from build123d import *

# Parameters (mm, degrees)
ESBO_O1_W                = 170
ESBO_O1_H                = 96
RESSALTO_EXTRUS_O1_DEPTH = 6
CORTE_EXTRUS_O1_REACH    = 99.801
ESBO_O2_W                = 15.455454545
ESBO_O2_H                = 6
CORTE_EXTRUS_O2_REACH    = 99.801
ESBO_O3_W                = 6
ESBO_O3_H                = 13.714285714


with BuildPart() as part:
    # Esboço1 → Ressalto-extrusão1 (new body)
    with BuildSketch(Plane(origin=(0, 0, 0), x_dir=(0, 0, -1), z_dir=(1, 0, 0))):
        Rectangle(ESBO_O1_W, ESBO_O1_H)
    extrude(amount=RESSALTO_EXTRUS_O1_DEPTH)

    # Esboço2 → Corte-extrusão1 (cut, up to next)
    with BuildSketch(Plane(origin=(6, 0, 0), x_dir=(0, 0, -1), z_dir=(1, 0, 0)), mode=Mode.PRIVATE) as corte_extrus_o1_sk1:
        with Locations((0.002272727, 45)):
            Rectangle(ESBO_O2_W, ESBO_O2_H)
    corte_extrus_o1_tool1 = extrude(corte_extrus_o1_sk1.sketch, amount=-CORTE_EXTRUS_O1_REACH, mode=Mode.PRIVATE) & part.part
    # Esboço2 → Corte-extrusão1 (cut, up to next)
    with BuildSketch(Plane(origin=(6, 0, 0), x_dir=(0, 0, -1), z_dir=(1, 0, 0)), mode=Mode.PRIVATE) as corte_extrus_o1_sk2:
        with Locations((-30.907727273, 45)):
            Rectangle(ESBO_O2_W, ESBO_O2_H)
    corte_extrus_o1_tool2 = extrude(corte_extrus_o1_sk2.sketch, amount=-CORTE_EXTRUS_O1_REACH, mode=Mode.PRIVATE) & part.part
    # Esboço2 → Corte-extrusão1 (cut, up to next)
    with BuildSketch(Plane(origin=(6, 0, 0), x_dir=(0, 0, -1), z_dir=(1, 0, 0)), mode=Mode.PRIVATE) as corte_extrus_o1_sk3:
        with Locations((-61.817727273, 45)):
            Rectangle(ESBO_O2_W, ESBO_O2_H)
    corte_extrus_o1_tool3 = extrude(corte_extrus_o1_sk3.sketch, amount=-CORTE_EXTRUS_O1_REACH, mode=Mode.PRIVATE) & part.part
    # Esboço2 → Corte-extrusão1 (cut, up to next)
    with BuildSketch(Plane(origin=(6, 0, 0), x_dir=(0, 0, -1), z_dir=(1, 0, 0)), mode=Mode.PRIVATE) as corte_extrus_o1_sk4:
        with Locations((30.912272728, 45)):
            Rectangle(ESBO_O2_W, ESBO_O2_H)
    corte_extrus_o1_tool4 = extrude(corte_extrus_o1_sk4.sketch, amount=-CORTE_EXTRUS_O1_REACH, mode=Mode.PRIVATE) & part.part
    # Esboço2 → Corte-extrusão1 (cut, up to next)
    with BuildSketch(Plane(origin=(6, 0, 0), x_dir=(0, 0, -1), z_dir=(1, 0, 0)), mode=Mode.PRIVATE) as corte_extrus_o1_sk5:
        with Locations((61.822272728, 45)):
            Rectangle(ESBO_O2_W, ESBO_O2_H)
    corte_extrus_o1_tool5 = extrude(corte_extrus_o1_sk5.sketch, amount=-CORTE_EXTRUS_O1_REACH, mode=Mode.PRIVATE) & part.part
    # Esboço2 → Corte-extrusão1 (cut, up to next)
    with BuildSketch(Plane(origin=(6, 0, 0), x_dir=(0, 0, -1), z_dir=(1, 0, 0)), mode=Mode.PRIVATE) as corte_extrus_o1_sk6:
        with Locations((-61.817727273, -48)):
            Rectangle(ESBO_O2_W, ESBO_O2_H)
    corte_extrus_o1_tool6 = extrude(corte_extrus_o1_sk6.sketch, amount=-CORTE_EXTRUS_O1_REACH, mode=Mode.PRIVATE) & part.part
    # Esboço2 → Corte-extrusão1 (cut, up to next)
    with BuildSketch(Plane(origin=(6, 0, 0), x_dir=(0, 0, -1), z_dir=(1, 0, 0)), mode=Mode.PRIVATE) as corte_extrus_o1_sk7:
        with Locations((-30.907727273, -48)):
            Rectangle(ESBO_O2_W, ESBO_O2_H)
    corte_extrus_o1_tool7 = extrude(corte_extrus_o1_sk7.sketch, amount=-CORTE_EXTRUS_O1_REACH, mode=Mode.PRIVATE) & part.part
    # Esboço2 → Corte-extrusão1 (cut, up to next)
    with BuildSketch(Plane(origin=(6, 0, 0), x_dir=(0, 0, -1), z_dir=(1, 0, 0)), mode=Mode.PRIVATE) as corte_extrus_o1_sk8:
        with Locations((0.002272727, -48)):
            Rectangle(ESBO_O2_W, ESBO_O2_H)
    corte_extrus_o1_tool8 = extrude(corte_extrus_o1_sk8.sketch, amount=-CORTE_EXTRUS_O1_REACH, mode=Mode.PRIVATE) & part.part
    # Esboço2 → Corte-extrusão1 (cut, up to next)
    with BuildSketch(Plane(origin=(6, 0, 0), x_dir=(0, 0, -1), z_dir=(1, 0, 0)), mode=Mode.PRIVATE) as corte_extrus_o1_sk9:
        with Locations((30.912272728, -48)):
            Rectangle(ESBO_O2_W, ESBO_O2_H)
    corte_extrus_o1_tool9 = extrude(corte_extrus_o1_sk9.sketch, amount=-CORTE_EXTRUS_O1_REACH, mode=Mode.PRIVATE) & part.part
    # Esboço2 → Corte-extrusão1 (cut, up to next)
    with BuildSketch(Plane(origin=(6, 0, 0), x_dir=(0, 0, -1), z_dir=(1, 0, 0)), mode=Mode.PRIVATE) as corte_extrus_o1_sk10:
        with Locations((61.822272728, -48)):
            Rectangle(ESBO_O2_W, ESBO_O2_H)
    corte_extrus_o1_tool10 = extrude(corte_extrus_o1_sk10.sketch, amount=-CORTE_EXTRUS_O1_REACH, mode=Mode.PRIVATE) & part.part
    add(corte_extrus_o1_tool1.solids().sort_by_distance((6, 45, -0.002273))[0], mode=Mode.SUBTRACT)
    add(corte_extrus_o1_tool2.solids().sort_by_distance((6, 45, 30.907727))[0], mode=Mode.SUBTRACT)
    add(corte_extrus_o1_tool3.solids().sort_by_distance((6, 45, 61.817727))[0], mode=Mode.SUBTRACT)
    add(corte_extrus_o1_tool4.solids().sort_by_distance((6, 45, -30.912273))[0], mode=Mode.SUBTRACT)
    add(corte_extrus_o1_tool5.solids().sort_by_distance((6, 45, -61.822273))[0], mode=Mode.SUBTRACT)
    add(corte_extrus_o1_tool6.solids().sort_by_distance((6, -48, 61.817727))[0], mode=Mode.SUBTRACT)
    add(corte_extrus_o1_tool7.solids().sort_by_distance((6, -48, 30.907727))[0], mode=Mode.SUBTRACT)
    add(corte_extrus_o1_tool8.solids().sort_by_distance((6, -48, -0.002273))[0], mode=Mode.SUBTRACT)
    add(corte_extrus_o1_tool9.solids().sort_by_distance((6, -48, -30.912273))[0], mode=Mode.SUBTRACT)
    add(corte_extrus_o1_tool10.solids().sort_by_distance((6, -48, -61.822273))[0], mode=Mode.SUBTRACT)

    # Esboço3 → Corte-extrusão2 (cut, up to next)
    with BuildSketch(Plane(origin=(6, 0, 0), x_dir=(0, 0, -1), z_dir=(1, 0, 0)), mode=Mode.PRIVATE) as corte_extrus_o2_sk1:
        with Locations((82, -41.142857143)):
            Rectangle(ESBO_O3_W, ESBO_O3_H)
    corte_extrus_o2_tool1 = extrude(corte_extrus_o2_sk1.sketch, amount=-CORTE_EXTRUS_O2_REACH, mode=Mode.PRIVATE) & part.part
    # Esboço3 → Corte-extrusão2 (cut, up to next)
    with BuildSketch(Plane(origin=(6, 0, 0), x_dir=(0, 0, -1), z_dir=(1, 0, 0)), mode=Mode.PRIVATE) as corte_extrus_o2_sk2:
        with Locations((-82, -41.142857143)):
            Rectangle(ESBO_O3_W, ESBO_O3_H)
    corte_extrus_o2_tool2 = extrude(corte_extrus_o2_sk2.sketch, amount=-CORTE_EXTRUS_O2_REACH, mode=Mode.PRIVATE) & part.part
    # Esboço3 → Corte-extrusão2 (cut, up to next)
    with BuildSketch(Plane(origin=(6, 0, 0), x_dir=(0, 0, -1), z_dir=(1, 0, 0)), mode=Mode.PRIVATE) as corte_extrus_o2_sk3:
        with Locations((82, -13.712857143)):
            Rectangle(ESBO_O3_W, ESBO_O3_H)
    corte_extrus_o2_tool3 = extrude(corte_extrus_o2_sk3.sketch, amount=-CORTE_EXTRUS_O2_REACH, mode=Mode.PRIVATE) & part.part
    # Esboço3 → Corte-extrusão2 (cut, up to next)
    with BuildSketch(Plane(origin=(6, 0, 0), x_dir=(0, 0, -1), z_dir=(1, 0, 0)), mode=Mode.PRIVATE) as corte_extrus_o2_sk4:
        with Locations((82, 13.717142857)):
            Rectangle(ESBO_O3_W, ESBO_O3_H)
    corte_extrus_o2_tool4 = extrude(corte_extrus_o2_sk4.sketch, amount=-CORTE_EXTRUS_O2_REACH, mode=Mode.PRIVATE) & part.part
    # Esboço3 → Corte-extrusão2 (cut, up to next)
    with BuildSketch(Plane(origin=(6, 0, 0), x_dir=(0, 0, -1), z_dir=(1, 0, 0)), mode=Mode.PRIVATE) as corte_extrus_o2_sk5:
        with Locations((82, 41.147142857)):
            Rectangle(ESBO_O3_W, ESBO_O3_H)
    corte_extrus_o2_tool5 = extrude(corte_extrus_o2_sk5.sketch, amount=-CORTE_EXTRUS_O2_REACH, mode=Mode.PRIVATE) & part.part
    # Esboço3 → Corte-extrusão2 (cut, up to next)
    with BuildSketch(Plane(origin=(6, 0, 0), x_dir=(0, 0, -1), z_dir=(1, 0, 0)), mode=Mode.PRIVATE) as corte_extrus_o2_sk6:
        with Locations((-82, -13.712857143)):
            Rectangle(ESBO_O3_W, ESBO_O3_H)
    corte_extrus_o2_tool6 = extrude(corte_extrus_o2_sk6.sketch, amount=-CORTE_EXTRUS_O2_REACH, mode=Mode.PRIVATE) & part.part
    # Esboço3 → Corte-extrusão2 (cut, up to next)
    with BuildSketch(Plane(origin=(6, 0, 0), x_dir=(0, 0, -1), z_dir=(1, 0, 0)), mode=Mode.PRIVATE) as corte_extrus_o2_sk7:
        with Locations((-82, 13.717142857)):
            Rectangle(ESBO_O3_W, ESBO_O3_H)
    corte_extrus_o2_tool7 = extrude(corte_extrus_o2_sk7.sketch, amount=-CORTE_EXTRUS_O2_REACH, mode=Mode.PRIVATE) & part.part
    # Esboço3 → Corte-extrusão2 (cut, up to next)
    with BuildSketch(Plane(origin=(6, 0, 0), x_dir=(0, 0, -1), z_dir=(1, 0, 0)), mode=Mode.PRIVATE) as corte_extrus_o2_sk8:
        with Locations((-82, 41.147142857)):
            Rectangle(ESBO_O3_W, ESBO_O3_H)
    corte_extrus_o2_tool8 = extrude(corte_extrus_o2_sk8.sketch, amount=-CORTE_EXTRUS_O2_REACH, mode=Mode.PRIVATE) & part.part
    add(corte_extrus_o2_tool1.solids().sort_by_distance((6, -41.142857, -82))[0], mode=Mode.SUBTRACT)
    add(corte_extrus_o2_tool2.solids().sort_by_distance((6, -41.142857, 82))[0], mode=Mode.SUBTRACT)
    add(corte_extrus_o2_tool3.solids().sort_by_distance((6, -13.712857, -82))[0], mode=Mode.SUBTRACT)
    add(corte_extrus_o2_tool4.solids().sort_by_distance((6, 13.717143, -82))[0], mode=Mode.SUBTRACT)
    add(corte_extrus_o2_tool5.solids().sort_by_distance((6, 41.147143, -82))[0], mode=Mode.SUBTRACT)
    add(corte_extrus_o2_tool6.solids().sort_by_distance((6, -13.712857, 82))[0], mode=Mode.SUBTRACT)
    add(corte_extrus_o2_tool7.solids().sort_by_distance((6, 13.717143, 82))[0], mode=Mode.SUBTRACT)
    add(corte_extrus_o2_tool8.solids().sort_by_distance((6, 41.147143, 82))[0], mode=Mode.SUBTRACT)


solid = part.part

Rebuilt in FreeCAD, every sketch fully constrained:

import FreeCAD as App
import Part
import Sketcher


def add_polygon(sketch, points):
    """Adds a closed chain of lines whose ends are joined by coincident constraints."""
    first, n = sketch.GeometryCount, len(points)
    for a, b in zip(points, points[1:] + points[:1]):
        sketch.addGeometry(Part.LineSegment(App.Vector(*a, 0), App.Vector(*b, 0)), False)
    for i in range(n):
        sketch.addConstraint(Sketcher.Constraint("Coincident", first + i, 2, first + (i + 1) % n, 1))

doc = App.newDocument("Part")
body = doc.addObject("PartDesign::Body", "Body")

sketch1 = body.newObject("Sketcher::SketchObject", "Sketch")
sketch1.AttachmentSupport = (doc.getObject("YZ_Plane"), [""])
sketch1.MapMode = "FlatFace"
add_polygon(sketch1, [(48, 85), (-48, 85), (-48, -85), (48, -85)])
sketch1.addConstraint([
    Sketcher.Constraint("Horizontal", 0),
    Sketcher.Constraint("Vertical", 1),
    Sketcher.Constraint("Horizontal", 2),
    Sketcher.Constraint("Vertical", 3),
    Sketcher.Constraint("Symmetric", 0, 2, 2, 2, -1, 1),
    Sketcher.Constraint("DistanceX", 0, 2, 0, 1, 96.0),
    Sketcher.Constraint("DistanceY", 1, 2, 1, 1, 170.0),
])
pad1 = body.newObject("PartDesign::Pad", "Pad")
pad1.Profile = sketch1
pad1.Length = 6

sketch2 = body.newObject("Sketcher::SketchObject", "Sketch001")
sketch2.AttachmentSupport = (doc.getObject("YZ_Plane"), [""])
sketch2.MapMode = "FlatFace"
sketch2.AttachmentOffset = App.Placement(App.Vector(0, 0, 6), App.Rotation())
add_polygon(sketch2, [(48, 8), (42, 8), (42, -8), (48, -8)])
sketch2.addConstraint([
    Sketcher.Constraint("Horizontal", 0),
    Sketcher.Constraint("Vertical", 1),
    Sketcher.Constraint("Horizontal", 2),
    Sketcher.Constraint("Vertical", 3),
    Sketcher.Constraint("DistanceX", 0, 2, 0, 1, 6.0),
    Sketcher.Constraint("DistanceX", -1, 1, 0, 2, 42.0),
    Sketcher.Constraint("DistanceY", 1, 2, -1, 1, 7.73),
    Sketcher.Constraint("DistanceY", 1, 2, 1, 1, 15.455455),
])
pocket1 = body.newObject("PartDesign::Pocket", "Pocket")
pocket1.Profile = sketch2
pocket1.Type = "UpToFirst"

sketch3 = body.newObject("Sketcher::SketchObject", "Sketch002")
sketch3.AttachmentSupport = (doc.getObject("YZ_Plane"), [""])
sketch3.MapMode = "FlatFace"
sketch3.AttachmentOffset = App.Placement(App.Vector(0, 0, 6), App.Rotation())
add_polygon(sketch3, [(48, 39), (42, 39), (42, 23), (48, 23)])
sketch3.addConstraint([
    Sketcher.Constraint("Horizontal", 0),
    Sketcher.Constraint("Vertical", 1),
    Sketcher.Constraint("Horizontal", 2),
    Sketcher.Constraint("Vertical", 3),
    Sketcher.Constraint("DistanceX", 0, 2, 0, 1, 6.0),
    Sketcher.Constraint("DistanceX", -1, 1, 0, 2, 42.0),
    Sketcher.Constraint("DistanceY", -1, 1, 1, 2, 23.18),
    Sketcher.Constraint("DistanceY", 1, 2, 1, 1, 15.455455),
])
pocket2 = body.newObject("PartDesign::Pocket", "Pocket001")
pocket2.Profile = sketch3
pocket2.Type = "UpToFirst"

sketch4 = body.newObject("Sketcher::SketchObject", "Sketch003")
sketch4.AttachmentSupport = (doc.getObject("YZ_Plane"), [""])
sketch4.MapMode = "FlatFace"
sketch4.AttachmentOffset = App.Placement(App.Vector(0, 0, 6), App.Rotation())
add_polygon(sketch4, [(48, 70), (42, 70), (42, 54), (48, 54)])
sketch4.addConstraint([
    Sketcher.Constraint("Horizontal", 0),
    Sketcher.Constraint("Vertical", 1),
    Sketcher.Constraint("Horizontal", 2),
    Sketcher.Constraint("Vertical", 3),
    Sketcher.Constraint("DistanceX", 0, 2, 0, 1, 6.0),
    Sketcher.Constraint("DistanceX", -1, 1, 0, 2, 42.0),
    Sketcher.Constraint("DistanceY", -1, 1, 1, 2, 54.09),
    Sketcher.Constraint("DistanceY", 1, 2, 1, 1, 15.455455),
])
pocket3 = body.newObject("PartDesign::Pocket", "Pocket002")
pocket3.Profile = sketch4
pocket3.Type = "UpToFirst"

sketch5 = body.newObject("Sketcher::SketchObject", "Sketch004")
sketch5.AttachmentSupport = (doc.getObject("YZ_Plane"), [""])
sketch5.MapMode = "FlatFace"
sketch5.AttachmentOffset = App.Placement(App.Vector(0, 0, 6), App.Rotation())
add_polygon(sketch5, [(48, -23), (42, -23), (42, -39), (48, -39)])
sketch5.addConstraint([
    Sketcher.Constraint("Horizontal", 0),
    Sketcher.Constraint("Vertical", 1),
    Sketcher.Constraint("Horizontal", 2),
    Sketcher.Constraint("Vertical", 3),
    Sketcher.Constraint("DistanceX", 0, 2, 0, 1, 6.0),
    Sketcher.Constraint("DistanceX", -1, 1, 0, 2, 42.0),
    Sketcher.Constraint("DistanceY", 1, 2, -1, 1, 38.64),
    Sketcher.Constraint("DistanceY", 1, 2, 1, 1, 15.455455),
])
pocket4 = body.newObject("PartDesign::Pocket", "Pocket003")
pocket4.Profile = sketch5
pocket4.Type = "UpToFirst"

sketch6 = body.newObject("Sketcher::SketchObject", "Sketch005")
sketch6.AttachmentSupport = (doc.getObject("YZ_Plane"), [""])
sketch6.MapMode = "FlatFace"
sketch6.AttachmentOffset = App.Placement(App.Vector(0, 0, 6), App.Rotation())
add_polygon(sketch6, [(48, -54), (42, -54), (42, -70), (48, -70)])
sketch6.addConstraint([
    Sketcher.Constraint("Horizontal", 0),
    Sketcher.Constraint("Vertical", 1),
    Sketcher.Constraint("Horizontal", 2),
    Sketcher.Constraint("Vertical", 3),
    Sketcher.Constraint("DistanceX", 0, 2, 0, 1, 6.0),
    Sketcher.Constraint("DistanceX", -1, 1, 0, 2, 42.0),
    Sketcher.Constraint("DistanceY", 1, 2, -1, 1, 69.55),
    Sketcher.Constraint("DistanceY", 1, 2, 1, 1, 15.455455),
])
pocket5 = body.newObject("PartDesign::Pocket", "Pocket004")
pocket5.Profile = sketch6
pocket5.Type = "UpToFirst"

sketch7 = body.newObject("Sketcher::SketchObject", "Sketch006")
sketch7.AttachmentSupport = (doc.getObject("YZ_Plane"), [""])
sketch7.MapMode = "FlatFace"
sketch7.AttachmentOffset = App.Placement(App.Vector(0, 0, 6), App.Rotation())
add_polygon(sketch7, [(-45, 70), (-51, 70), (-51, 54), (-45, 54)])
sketch7.addConstraint([
    Sketcher.Constraint("Horizontal", 0),
    Sketcher.Constraint("Vertical", 1),
    Sketcher.Constraint("Horizontal", 2),
    Sketcher.Constraint("Vertical", 3),
    Sketcher.Constraint("DistanceX", 0, 2, 0, 1, 6.0),
    Sketcher.Constraint("DistanceX", 0, 2, -1, 1, 51.0),
    Sketcher.Constraint("DistanceY", -1, 1, 1, 2, 54.09),
    Sketcher.Constraint("DistanceY", 1, 2, 1, 1, 15.455455),
])
pocket6 = body.newObject("PartDesign::Pocket", "Pocket005")
pocket6.Profile = sketch7
pocket6.Type = "UpToFirst"

sketch8 = body.newObject("Sketcher::SketchObject", "Sketch007")
sketch8.AttachmentSupport = (doc.getObject("YZ_Plane"), [""])
sketch8.MapMode = "FlatFace"
sketch8.AttachmentOffset = App.Placement(App.Vector(0, 0, 6), App.Rotation())
add_polygon(sketch8, [(-45, 39), (-51, 39), (-51, 23), (-45, 23)])
sketch8.addConstraint([
    Sketcher.Constraint("Horizontal", 0),
    Sketcher.Constraint("Vertical", 1),
    Sketcher.Constraint("Horizontal", 2),
    Sketcher.Constraint("Vertical", 3),
    Sketcher.Constraint("DistanceX", 0, 2, 0, 1, 6.0),
    Sketcher.Constraint("DistanceX", 0, 2, -1, 1, 51.0),
    Sketcher.Constraint("DistanceY", -1, 1, 1, 2, 23.18),
    Sketcher.Constraint("DistanceY", 1, 2, 1, 1, 15.455455),
])
pocket7 = body.newObject("PartDesign::Pocket", "Pocket006")
pocket7.Profile = sketch8
pocket7.Type = "UpToFirst"

sketch9 = body.newObject("Sketcher::SketchObject", "Sketch008")
sketch9.AttachmentSupport = (doc.getObject("YZ_Plane"), [""])
sketch9.MapMode = "FlatFace"
sketch9.AttachmentOffset = App.Placement(App.Vector(0, 0, 6), App.Rotation())
add_polygon(sketch9, [(-45, 8), (-51, 8), (-51, -8), (-45, -8)])
sketch9.addConstraint([
    Sketcher.Constraint("Horizontal", 0),
    Sketcher.Constraint("Vertical", 1),
    Sketcher.Constraint("Horizontal", 2),
    Sketcher.Constraint("Vertical", 3),
    Sketcher.Constraint("DistanceX", 0, 2, 0, 1, 6.0),
    Sketcher.Constraint("DistanceX", 0, 2, -1, 1, 51.0),
    Sketcher.Constraint("DistanceY", 1, 2, -1, 1, 7.73),
    Sketcher.Constraint("DistanceY", 1, 2, 1, 1, 15.455455),
])
pocket8 = body.newObject("PartDesign::Pocket", "Pocket007")
pocket8.Profile = sketch9
pocket8.Type = "UpToFirst"

sketch10 = body.newObject("Sketcher::SketchObject", "Sketch009")
sketch10.AttachmentSupport = (doc.getObject("YZ_Plane"), [""])
sketch10.MapMode = "FlatFace"
sketch10.AttachmentOffset = App.Placement(App.Vector(0, 0, 6), App.Rotation())
add_polygon(sketch10, [(-45, -23), (-51, -23), (-51, -39), (-45, -39)])
sketch10.addConstraint([
    Sketcher.Constraint("Horizontal", 0),
    Sketcher.Constraint("Vertical", 1),
    Sketcher.Constraint("Horizontal", 2),
    Sketcher.Constraint("Vertical", 3),
    Sketcher.Constraint("DistanceX", 0, 2, 0, 1, 6.0),
    Sketcher.Constraint("DistanceX", 0, 2, -1, 1, 51.0),
    Sketcher.Constraint("DistanceY", 1, 2, -1, 1, 38.64),
    Sketcher.Constraint("DistanceY", 1, 2, 1, 1, 15.455455),
])
pocket9 = body.newObject("PartDesign::Pocket", "Pocket008")
pocket9.Profile = sketch10
pocket9.Type = "UpToFirst"

sketch11 = body.newObject("Sketcher::SketchObject", "Sketch010")
sketch11.AttachmentSupport = (doc.getObject("YZ_Plane"), [""])
sketch11.MapMode = "FlatFace"
sketch11.AttachmentOffset = App.Placement(App.Vector(0, 0, 6), App.Rotation())
add_polygon(sketch11, [(-45, -54), (-51, -54), (-51, -70), (-45, -70)])
sketch11.addConstraint([
    Sketcher.Constraint("Horizontal", 0),
    Sketcher.Constraint("Vertical", 1),
    Sketcher.Constraint("Horizontal", 2),
    Sketcher.Constraint("Vertical", 3),
    Sketcher.Constraint("DistanceX", 0, 2, 0, 1, 6.0),
    Sketcher.Constraint("DistanceX", 0, 2, -1, 1, 51.0),
    Sketcher.Constraint("DistanceY", 1, 2, -1, 1, 69.55),
    Sketcher.Constraint("DistanceY", 1, 2, 1, 1, 15.455455),
])
pocket10 = body.newObject("PartDesign::Pocket", "Pocket009")
pocket10.Profile = sketch11
pocket10.Type = "UpToFirst"

sketch12 = body.newObject("Sketcher::SketchObject", "Sketch011")
sketch12.AttachmentSupport = (doc.getObject("YZ_Plane"), [""])
sketch12.MapMode = "FlatFace"
sketch12.AttachmentOffset = App.Placement(App.Vector(0, 0, 6), App.Rotation())
add_polygon(sketch12, [(-34, -79), (-48, -79), (-48, -85), (-34, -85)])
sketch12.addConstraint([
    Sketcher.Constraint("Horizontal", 0),
    Sketcher.Constraint("Vertical", 1),
    Sketcher.Constraint("Horizontal", 2),
    Sketcher.Constraint("Vertical", 3),
    Sketcher.Constraint("DistanceY", 1, 2, 1, 1, 6.0),
    Sketcher.Constraint("DistanceX", 0, 2, -1, 1, 48.0),
    Sketcher.Constraint("DistanceY", 0, 2, -1, 1, 79.0),
    Sketcher.Constraint("DistanceX", 0, 2, 0, 1, 13.714286),
])
pocket11 = body.newObject("PartDesign::Pocket", "Pocket010")
pocket11.Profile = sketch12
pocket11.Type = "UpToFirst"

sketch13 = body.newObject("Sketcher::SketchObject", "Sketch012")
sketch13.AttachmentSupport = (doc.getObject("YZ_Plane"), [""])
sketch13.MapMode = "FlatFace"
sketch13.AttachmentOffset = App.Placement(App.Vector(0, 0, 6), App.Rotation())
add_polygon(sketch13, [(-34, 85), (-48, 85), (-48, 79), (-34, 79)])
sketch13.addConstraint([
    Sketcher.Constraint("Horizontal", 0),
    Sketcher.Constraint("Vertical", 1),
    Sketcher.Constraint("Horizontal", 2),
    Sketcher.Constraint("Vertical", 3),
    Sketcher.Constraint("DistanceY", 1, 2, 1, 1, 6.0),
    Sketcher.Constraint("DistanceX", 0, 2, -1, 1, 48.0),
    Sketcher.Constraint("DistanceY", -1, 1, 0, 2, 85.0),
    Sketcher.Constraint("DistanceX", 0, 2, 0, 1, 13.714286),
])
pocket12 = body.newObject("PartDesign::Pocket", "Pocket011")
pocket12.Profile = sketch13
pocket12.Type = "UpToFirst"

sketch14 = body.newObject("Sketcher::SketchObject", "Sketch013")
sketch14.AttachmentSupport = (doc.getObject("YZ_Plane"), [""])
sketch14.MapMode = "FlatFace"
sketch14.AttachmentOffset = App.Placement(App.Vector(0, 0, 6), App.Rotation())
add_polygon(sketch14, [(-7, -79), (-21, -79), (-21, -85), (-7, -85)])
sketch14.addConstraint([
    Sketcher.Constraint("Horizontal", 0),
    Sketcher.Constraint("Vertical", 1),
    Sketcher.Constraint("Horizontal", 2),
    Sketcher.Constraint("Vertical", 3),
    Sketcher.Constraint("DistanceY", 1, 2, 1, 1, 6.0),
    Sketcher.Constraint("DistanceY", 0, 2, -1, 1, 79.0),
    Sketcher.Constraint("DistanceX", 0, 2, -1, 1, 20.57),
    Sketcher.Constraint("DistanceX", 0, 2, 0, 1, 13.714286),
])
pocket13 = body.newObject("PartDesign::Pocket", "Pocket012")
pocket13.Profile = sketch14
pocket13.Type = "UpToFirst"

sketch15 = body.newObject("Sketcher::SketchObject", "Sketch014")
sketch15.AttachmentSupport = (doc.getObject("YZ_Plane"), [""])
sketch15.MapMode = "FlatFace"
sketch15.AttachmentOffset = App.Placement(App.Vector(0, 0, 6), App.Rotation())
add_polygon(sketch15, [(21, -79), (7, -79), (7, -85), (21, -85)])
sketch15.addConstraint([
    Sketcher.Constraint("Horizontal", 0),
    Sketcher.Constraint("Vertical", 1),
    Sketcher.Constraint("Horizontal", 2),
    Sketcher.Constraint("Vertical", 3),
    Sketcher.Constraint("DistanceY", 1, 2, 1, 1, 6.0),
    Sketcher.Constraint("DistanceY", 0, 2, -1, 1, 79.0),
    Sketcher.Constraint("DistanceX", -1, 1, 0, 2, 6.86),
    Sketcher.Constraint("DistanceX", 0, 2, 0, 1, 13.714286),
])
pocket14 = body.newObject("PartDesign::Pocket", "Pocket013")
pocket14.Profile = sketch15
pocket14.Type = "UpToFirst"

sketch16 = body.newObject("Sketcher::SketchObject", "Sketch015")
sketch16.AttachmentSupport = (doc.getObject("YZ_Plane"), [""])
sketch16.MapMode = "FlatFace"
sketch16.AttachmentOffset = App.Placement(App.Vector(0, 0, 6), App.Rotation())
add_polygon(sketch16, [(48, -79), (34, -79), (34, -85), (48, -85)])
sketch16.addConstraint([
    Sketcher.Constraint("Horizontal", 0),
    Sketcher.Constraint("Vertical", 1),
    Sketcher.Constraint("Horizontal", 2),
    Sketcher.Constraint("Vertical", 3),
    Sketcher.Constraint("DistanceY", 1, 2, 1, 1, 6.0),
    Sketcher.Constraint("DistanceY", 0, 2, -1, 1, 79.0),
    Sketcher.Constraint("DistanceX", -1, 1, 0, 2, 34.29),
    Sketcher.Constraint("DistanceX", 0, 2, 0, 1, 13.714286),
])
pocket15 = body.newObject("PartDesign::Pocket", "Pocket014")
pocket15.Profile = sketch16
pocket15.Type = "UpToFirst"

sketch17 = body.newObject("Sketcher::SketchObject", "Sketch016")
sketch17.AttachmentSupport = (doc.getObject("YZ_Plane"), [""])
sketch17.MapMode = "FlatFace"
sketch17.AttachmentOffset = App.Placement(App.Vector(0, 0, 6), App.Rotation())
add_polygon(sketch17, [(-7, 85), (-21, 85), (-21, 79), (-7, 79)])
sketch17.addConstraint([
    Sketcher.Constraint("Horizontal", 0),
    Sketcher.Constraint("Vertical", 1),
    Sketcher.Constraint("Horizontal", 2),
    Sketcher.Constraint("Vertical", 3),
    Sketcher.Constraint("DistanceY", 1, 2, 1, 1, 6.0),
    Sketcher.Constraint("DistanceY", -1, 1, 0, 2, 85.0),
    Sketcher.Constraint("DistanceX", 0, 2, -1, 1, 20.57),
    Sketcher.Constraint("DistanceX", 0, 2, 0, 1, 13.714286),
])
pocket16 = body.newObject("PartDesign::Pocket", "Pocket015")
pocket16.Profile = sketch17
pocket16.Type = "UpToFirst"

sketch18 = body.newObject("Sketcher::SketchObject", "Sketch017")
sketch18.AttachmentSupport = (doc.getObject("YZ_Plane"), [""])
sketch18.MapMode = "FlatFace"
sketch18.AttachmentOffset = App.Placement(App.Vector(0, 0, 6), App.Rotation())
add_polygon(sketch18, [(21, 85), (7, 85), (7, 79), (21, 79)])
sketch18.addConstraint([
    Sketcher.Constraint("Horizontal", 0),
    Sketcher.Constraint("Vertical", 1),
    Sketcher.Constraint("Horizontal", 2),
    Sketcher.Constraint("Vertical", 3),
    Sketcher.Constraint("DistanceY", 1, 2, 1, 1, 6.0),
    Sketcher.Constraint("DistanceY", -1, 1, 0, 2, 85.0),
    Sketcher.Constraint("DistanceX", -1, 1, 0, 2, 6.86),
    Sketcher.Constraint("DistanceX", 0, 2, 0, 1, 13.714286),
])
pocket17 = body.newObject("PartDesign::Pocket", "Pocket016")
pocket17.Profile = sketch18
pocket17.Type = "UpToFirst"

sketch19 = body.newObject("Sketcher::SketchObject", "Sketch018")
sketch19.AttachmentSupport = (doc.getObject("YZ_Plane"), [""])
sketch19.MapMode = "FlatFace"
sketch19.AttachmentOffset = App.Placement(App.Vector(0, 0, 6), App.Rotation())
add_polygon(sketch19, [(48, 85), (34, 85), (34, 79), (48, 79)])
sketch19.addConstraint([
    Sketcher.Constraint("Horizontal", 0),
    Sketcher.Constraint("Vertical", 1),
    Sketcher.Constraint("Horizontal", 2),
    Sketcher.Constraint("Vertical", 3),
    Sketcher.Constraint("DistanceY", 1, 2, 1, 1, 6.0),
    Sketcher.Constraint("DistanceY", -1, 1, 0, 2, 85.0),
    Sketcher.Constraint("DistanceX", -1, 1, 0, 2, 34.29),
    Sketcher.Constraint("DistanceX", 0, 2, 0, 1, 13.714286),
])
pocket18 = body.newObject("PartDesign::Pocket", "Pocket017")
pocket18.Profile = sketch19
pocket18.Type = "UpToFirst"

doc.recompute()
